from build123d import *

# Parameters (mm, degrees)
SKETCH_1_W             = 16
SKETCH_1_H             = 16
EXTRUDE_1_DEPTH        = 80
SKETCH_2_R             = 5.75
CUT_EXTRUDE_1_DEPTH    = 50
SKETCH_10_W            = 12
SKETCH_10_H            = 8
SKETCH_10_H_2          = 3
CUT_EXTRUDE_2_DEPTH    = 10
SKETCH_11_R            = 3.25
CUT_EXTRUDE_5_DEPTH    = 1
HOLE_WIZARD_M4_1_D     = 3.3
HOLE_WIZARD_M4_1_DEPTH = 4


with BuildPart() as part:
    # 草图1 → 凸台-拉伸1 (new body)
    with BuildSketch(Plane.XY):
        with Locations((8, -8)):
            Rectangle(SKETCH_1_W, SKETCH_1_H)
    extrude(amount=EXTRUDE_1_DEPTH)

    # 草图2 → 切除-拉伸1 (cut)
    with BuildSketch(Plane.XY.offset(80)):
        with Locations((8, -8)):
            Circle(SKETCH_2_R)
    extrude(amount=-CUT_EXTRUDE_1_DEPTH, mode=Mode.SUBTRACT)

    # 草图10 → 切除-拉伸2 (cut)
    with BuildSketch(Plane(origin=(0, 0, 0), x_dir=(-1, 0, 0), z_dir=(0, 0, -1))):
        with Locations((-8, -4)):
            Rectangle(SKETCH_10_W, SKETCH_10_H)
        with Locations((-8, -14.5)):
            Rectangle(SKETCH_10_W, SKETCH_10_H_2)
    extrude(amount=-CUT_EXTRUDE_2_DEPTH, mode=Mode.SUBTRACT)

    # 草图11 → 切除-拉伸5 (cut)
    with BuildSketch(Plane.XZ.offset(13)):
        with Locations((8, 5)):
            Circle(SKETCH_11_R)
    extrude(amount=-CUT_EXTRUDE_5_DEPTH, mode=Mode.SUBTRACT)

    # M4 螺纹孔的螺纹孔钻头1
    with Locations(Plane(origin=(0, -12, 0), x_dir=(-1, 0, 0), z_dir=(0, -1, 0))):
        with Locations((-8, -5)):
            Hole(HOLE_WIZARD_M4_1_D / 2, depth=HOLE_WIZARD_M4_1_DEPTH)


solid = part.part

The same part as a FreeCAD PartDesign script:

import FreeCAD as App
import Part
import Sketcher
from FreeCAD import Vector

doc = App.newDocument("Part")
body = doc.addObject("PartDesign::Body", "Body")

sketch1 = body.newObject("Sketcher::SketchObject", "Sketch")
sketch1.AttachmentSupport = (doc.getObject("XY_Plane"), [""])
sketch1.MapMode = "FlatFace"
sketch1.addGeometry([
    Part.LineSegment(Vector(0, 0, 0), Vector(0, -16, 0)),
    Part.LineSegment(Vector(0, -16, 0), Vector(16, -16, 0)),
    Part.LineSegment(Vector(16, -16, 0), Vector(16, 0, 0)),
    Part.LineSegment(Vector(16, 0, 0), Vector(0, 0, 0)),
], False)
sketch1.addConstraint([
    Sketcher.Constraint("Coincident", 0, 2, 1, 1),
    Sketcher.Constraint("Coincident", 1, 2, 2, 1),
    Sketcher.Constraint("Coincident", 2, 2, 3, 1),
    Sketcher.Constraint("Coincident", 3, 2, 0, 1),
    Sketcher.Constraint("Vertical", 0),
    Sketcher.Constraint("Horizontal", 1),
    Sketcher.Constraint("Vertical", 2),
    Sketcher.Constraint("Horizontal", 3),
    Sketcher.Constraint("Coincident", 3, 2, -1, 1),
    Sketcher.Constraint("Equal", 3, 0),
    Sketcher.Constraint("DistanceX", 1, 1, 1, 2, 16.0),
])
pad1 = body.newObject("PartDesign::Pad", "Pad")
pad1.Profile = sketch1
pad1.Length = 80

sketch2 = body.newObject("Sketcher::SketchObject", "Sketch001")
sketch2.AttachmentSupport = (doc.getObject("XY_Plane"), [""])
sketch2.MapMode = "FlatFace"
sketch2.AttachmentOffset = App.Placement(Vector(0, 0, 80), App.Rotation())
sketch2.addGeometry(Part.Circle(Vector(8, -8, 0), Vector(0, 0, 1), 5.75), False)
sketch2.addConstraint([
    Sketcher.Constraint("Diameter", 0, 11.5),
    Sketcher.Constraint("DistanceX", -1, 1, 0, 3, 8.0),
    Sketcher.Constraint("DistanceY", 0, 3, -1, 1, 8.0),
])
pocket1 = body.newObject("PartDesign::Pocket", "Pocket")
pocket1.Profile = sketch2
pocket1.Length = 50

sketch3 = body.newObject("Sketcher::SketchObject", "Sketch002")
sketch3.AttachmentSupport = (doc.getObject("XY_Plane"), [""])
sketch3.MapMode = "FlatFace"
sketch3.addGeometry([
    Part.LineSegment(Vector(14, 0, 0), Vector(14, -8, 0)),
    Part.LineSegment(Vector(14, -8, 0), Vector(2, -8, 0)),
    Part.LineSegment(Vector(2, -8, 0), Vector(2, 0, 0)),
    Part.LineSegment(Vector(2, 0, 0), Vector(14, 0, 0)),
    Part.LineSegment(Vector(14, -13, 0), Vector(14, -16, 0)),
    Part.LineSegment(Vector(14, -16, 0), Vector(2, -16, 0)),
    Part.LineSegment(Vector(2, -16, 0), Vector(2, -13, 0)),
    Part.LineSegment(Vector(2, -13, 0), Vector(14, -13, 0)),
], False)
sketch3.addConstraint([
    Sketcher.Constraint("Coincident", 0, 2, 1, 1),
    Sketcher.Constraint("Coincident", 1, 2, 2, 1),
    Sketcher.Constraint("Coincident", 2, 2, 3, 1),
    Sketcher.Constraint("Coincident", 3, 2, 0, 1),
    Sketcher.Constraint("Coincident", 4, 2, 5, 1),
    Sketcher.Constraint("Coincident", 5, 2, 6, 1),
    Sketcher.Constraint("Coincident", 6, 2, 7, 1),
    Sketcher.Constraint("Coincident", 7, 2, 4, 1),
    Sketcher.Constraint("Vertical", 0),
    Sketcher.Constraint("Horizontal", 1),
    Sketcher.Constraint("Vertical", 2),
    Sketcher.Constraint("Horizontal", 3),
    Sketcher.Constraint("Vertical", 4),
    Sketcher.Constraint("Horizontal", 5),
    Sketcher.Constraint("Vertical", 6),
    Sketcher.Constraint("Horizontal", 7),
    Sketcher.Constraint("PointOnObject", 2, 2, -1),
    Sketcher.Constraint("Vertical", 3, 2, 4, 2),
    Sketcher.Constraint("Vertical", 2, 2, 5, 2),
    Sketcher.Constraint("DistanceX", 1, 2, 1, 1, 12.0),
    Sketcher.Constraint("DistanceY", 0, 2, 0, 1, 8.0),
    Sketcher.Constraint("DistanceY", 4, 2, 4, 1, 3.0),
    Sketcher.Constraint("DistanceX", -1, 1, 0, 2, 14.0),
    Sketcher.Constraint("DistanceY", 4, 2, -1, 1, 16.0),
])
pocket2 = body.newObject("PartDesign::Pocket", "Pocket001")
pocket2.Profile = sketch3
pocket2.Length = 10
pocket2.Reversed = True

sketch4 = body.newObject("Sketcher::SketchObject", "Sketch003")
sketch4.AttachmentSupport = (doc.getObject("XZ_Plane"), [""])
sketch4.MapMode = "FlatFace"
sketch4.AttachmentOffset = App.Placement(Vector(0, 0, 13), App.Rotation())
sketch4.addGeometry(Part.Circle(Vector(8, 5, 0), Vector(0, 0, 1), 3.25), False)
sketch4.addConstraint([
    Sketcher.Constraint("Diameter", 0, 6.5),
    Sketcher.Constraint("DistanceX", -1, 1, 0, 3, 8.0),
    Sketcher.Constraint("DistanceY", -1, 1, 0, 3, 5.0),
])
pocket3 = body.newObject("PartDesign::Pocket", "Pocket002")
pocket3.Profile = sketch4
pocket3.Length = 1

sketch5 = body.newObject("Sketcher::SketchObject", "Sketch004")
sketch5.AttachmentSupport = (doc.getObject("XZ_Plane"), [""])
sketch5.MapMode = "FlatFace"
sketch5.AttachmentOffset = App.Placement(Vector(0, 0, 12), App.Rotation())
sketch5.addGeometry(Part.Circle(Vector(8, 5, 0), Vector(0, 0, 1), 1.65), False)
sketch5.addConstraint([
    Sketcher.Constraint("Diameter", 0, 3.3),
    Sketcher.Constraint("DistanceX", -1, 1, 0, 3, 8.0),
    Sketcher.Constraint("DistanceY", -1, 1, 0, 3, 5.0),
])
doc.recompute()
hole = body.newObject("PartDesign::Hole", "Hole")
hole.Profile = sketch5
hole.ThreadType = "None"
hole.Diameter = 3.3
hole.DepthType = "Dimension"
hole.Depth = 4
hole.DrillPoint = "Flat"

doc.recompute()
